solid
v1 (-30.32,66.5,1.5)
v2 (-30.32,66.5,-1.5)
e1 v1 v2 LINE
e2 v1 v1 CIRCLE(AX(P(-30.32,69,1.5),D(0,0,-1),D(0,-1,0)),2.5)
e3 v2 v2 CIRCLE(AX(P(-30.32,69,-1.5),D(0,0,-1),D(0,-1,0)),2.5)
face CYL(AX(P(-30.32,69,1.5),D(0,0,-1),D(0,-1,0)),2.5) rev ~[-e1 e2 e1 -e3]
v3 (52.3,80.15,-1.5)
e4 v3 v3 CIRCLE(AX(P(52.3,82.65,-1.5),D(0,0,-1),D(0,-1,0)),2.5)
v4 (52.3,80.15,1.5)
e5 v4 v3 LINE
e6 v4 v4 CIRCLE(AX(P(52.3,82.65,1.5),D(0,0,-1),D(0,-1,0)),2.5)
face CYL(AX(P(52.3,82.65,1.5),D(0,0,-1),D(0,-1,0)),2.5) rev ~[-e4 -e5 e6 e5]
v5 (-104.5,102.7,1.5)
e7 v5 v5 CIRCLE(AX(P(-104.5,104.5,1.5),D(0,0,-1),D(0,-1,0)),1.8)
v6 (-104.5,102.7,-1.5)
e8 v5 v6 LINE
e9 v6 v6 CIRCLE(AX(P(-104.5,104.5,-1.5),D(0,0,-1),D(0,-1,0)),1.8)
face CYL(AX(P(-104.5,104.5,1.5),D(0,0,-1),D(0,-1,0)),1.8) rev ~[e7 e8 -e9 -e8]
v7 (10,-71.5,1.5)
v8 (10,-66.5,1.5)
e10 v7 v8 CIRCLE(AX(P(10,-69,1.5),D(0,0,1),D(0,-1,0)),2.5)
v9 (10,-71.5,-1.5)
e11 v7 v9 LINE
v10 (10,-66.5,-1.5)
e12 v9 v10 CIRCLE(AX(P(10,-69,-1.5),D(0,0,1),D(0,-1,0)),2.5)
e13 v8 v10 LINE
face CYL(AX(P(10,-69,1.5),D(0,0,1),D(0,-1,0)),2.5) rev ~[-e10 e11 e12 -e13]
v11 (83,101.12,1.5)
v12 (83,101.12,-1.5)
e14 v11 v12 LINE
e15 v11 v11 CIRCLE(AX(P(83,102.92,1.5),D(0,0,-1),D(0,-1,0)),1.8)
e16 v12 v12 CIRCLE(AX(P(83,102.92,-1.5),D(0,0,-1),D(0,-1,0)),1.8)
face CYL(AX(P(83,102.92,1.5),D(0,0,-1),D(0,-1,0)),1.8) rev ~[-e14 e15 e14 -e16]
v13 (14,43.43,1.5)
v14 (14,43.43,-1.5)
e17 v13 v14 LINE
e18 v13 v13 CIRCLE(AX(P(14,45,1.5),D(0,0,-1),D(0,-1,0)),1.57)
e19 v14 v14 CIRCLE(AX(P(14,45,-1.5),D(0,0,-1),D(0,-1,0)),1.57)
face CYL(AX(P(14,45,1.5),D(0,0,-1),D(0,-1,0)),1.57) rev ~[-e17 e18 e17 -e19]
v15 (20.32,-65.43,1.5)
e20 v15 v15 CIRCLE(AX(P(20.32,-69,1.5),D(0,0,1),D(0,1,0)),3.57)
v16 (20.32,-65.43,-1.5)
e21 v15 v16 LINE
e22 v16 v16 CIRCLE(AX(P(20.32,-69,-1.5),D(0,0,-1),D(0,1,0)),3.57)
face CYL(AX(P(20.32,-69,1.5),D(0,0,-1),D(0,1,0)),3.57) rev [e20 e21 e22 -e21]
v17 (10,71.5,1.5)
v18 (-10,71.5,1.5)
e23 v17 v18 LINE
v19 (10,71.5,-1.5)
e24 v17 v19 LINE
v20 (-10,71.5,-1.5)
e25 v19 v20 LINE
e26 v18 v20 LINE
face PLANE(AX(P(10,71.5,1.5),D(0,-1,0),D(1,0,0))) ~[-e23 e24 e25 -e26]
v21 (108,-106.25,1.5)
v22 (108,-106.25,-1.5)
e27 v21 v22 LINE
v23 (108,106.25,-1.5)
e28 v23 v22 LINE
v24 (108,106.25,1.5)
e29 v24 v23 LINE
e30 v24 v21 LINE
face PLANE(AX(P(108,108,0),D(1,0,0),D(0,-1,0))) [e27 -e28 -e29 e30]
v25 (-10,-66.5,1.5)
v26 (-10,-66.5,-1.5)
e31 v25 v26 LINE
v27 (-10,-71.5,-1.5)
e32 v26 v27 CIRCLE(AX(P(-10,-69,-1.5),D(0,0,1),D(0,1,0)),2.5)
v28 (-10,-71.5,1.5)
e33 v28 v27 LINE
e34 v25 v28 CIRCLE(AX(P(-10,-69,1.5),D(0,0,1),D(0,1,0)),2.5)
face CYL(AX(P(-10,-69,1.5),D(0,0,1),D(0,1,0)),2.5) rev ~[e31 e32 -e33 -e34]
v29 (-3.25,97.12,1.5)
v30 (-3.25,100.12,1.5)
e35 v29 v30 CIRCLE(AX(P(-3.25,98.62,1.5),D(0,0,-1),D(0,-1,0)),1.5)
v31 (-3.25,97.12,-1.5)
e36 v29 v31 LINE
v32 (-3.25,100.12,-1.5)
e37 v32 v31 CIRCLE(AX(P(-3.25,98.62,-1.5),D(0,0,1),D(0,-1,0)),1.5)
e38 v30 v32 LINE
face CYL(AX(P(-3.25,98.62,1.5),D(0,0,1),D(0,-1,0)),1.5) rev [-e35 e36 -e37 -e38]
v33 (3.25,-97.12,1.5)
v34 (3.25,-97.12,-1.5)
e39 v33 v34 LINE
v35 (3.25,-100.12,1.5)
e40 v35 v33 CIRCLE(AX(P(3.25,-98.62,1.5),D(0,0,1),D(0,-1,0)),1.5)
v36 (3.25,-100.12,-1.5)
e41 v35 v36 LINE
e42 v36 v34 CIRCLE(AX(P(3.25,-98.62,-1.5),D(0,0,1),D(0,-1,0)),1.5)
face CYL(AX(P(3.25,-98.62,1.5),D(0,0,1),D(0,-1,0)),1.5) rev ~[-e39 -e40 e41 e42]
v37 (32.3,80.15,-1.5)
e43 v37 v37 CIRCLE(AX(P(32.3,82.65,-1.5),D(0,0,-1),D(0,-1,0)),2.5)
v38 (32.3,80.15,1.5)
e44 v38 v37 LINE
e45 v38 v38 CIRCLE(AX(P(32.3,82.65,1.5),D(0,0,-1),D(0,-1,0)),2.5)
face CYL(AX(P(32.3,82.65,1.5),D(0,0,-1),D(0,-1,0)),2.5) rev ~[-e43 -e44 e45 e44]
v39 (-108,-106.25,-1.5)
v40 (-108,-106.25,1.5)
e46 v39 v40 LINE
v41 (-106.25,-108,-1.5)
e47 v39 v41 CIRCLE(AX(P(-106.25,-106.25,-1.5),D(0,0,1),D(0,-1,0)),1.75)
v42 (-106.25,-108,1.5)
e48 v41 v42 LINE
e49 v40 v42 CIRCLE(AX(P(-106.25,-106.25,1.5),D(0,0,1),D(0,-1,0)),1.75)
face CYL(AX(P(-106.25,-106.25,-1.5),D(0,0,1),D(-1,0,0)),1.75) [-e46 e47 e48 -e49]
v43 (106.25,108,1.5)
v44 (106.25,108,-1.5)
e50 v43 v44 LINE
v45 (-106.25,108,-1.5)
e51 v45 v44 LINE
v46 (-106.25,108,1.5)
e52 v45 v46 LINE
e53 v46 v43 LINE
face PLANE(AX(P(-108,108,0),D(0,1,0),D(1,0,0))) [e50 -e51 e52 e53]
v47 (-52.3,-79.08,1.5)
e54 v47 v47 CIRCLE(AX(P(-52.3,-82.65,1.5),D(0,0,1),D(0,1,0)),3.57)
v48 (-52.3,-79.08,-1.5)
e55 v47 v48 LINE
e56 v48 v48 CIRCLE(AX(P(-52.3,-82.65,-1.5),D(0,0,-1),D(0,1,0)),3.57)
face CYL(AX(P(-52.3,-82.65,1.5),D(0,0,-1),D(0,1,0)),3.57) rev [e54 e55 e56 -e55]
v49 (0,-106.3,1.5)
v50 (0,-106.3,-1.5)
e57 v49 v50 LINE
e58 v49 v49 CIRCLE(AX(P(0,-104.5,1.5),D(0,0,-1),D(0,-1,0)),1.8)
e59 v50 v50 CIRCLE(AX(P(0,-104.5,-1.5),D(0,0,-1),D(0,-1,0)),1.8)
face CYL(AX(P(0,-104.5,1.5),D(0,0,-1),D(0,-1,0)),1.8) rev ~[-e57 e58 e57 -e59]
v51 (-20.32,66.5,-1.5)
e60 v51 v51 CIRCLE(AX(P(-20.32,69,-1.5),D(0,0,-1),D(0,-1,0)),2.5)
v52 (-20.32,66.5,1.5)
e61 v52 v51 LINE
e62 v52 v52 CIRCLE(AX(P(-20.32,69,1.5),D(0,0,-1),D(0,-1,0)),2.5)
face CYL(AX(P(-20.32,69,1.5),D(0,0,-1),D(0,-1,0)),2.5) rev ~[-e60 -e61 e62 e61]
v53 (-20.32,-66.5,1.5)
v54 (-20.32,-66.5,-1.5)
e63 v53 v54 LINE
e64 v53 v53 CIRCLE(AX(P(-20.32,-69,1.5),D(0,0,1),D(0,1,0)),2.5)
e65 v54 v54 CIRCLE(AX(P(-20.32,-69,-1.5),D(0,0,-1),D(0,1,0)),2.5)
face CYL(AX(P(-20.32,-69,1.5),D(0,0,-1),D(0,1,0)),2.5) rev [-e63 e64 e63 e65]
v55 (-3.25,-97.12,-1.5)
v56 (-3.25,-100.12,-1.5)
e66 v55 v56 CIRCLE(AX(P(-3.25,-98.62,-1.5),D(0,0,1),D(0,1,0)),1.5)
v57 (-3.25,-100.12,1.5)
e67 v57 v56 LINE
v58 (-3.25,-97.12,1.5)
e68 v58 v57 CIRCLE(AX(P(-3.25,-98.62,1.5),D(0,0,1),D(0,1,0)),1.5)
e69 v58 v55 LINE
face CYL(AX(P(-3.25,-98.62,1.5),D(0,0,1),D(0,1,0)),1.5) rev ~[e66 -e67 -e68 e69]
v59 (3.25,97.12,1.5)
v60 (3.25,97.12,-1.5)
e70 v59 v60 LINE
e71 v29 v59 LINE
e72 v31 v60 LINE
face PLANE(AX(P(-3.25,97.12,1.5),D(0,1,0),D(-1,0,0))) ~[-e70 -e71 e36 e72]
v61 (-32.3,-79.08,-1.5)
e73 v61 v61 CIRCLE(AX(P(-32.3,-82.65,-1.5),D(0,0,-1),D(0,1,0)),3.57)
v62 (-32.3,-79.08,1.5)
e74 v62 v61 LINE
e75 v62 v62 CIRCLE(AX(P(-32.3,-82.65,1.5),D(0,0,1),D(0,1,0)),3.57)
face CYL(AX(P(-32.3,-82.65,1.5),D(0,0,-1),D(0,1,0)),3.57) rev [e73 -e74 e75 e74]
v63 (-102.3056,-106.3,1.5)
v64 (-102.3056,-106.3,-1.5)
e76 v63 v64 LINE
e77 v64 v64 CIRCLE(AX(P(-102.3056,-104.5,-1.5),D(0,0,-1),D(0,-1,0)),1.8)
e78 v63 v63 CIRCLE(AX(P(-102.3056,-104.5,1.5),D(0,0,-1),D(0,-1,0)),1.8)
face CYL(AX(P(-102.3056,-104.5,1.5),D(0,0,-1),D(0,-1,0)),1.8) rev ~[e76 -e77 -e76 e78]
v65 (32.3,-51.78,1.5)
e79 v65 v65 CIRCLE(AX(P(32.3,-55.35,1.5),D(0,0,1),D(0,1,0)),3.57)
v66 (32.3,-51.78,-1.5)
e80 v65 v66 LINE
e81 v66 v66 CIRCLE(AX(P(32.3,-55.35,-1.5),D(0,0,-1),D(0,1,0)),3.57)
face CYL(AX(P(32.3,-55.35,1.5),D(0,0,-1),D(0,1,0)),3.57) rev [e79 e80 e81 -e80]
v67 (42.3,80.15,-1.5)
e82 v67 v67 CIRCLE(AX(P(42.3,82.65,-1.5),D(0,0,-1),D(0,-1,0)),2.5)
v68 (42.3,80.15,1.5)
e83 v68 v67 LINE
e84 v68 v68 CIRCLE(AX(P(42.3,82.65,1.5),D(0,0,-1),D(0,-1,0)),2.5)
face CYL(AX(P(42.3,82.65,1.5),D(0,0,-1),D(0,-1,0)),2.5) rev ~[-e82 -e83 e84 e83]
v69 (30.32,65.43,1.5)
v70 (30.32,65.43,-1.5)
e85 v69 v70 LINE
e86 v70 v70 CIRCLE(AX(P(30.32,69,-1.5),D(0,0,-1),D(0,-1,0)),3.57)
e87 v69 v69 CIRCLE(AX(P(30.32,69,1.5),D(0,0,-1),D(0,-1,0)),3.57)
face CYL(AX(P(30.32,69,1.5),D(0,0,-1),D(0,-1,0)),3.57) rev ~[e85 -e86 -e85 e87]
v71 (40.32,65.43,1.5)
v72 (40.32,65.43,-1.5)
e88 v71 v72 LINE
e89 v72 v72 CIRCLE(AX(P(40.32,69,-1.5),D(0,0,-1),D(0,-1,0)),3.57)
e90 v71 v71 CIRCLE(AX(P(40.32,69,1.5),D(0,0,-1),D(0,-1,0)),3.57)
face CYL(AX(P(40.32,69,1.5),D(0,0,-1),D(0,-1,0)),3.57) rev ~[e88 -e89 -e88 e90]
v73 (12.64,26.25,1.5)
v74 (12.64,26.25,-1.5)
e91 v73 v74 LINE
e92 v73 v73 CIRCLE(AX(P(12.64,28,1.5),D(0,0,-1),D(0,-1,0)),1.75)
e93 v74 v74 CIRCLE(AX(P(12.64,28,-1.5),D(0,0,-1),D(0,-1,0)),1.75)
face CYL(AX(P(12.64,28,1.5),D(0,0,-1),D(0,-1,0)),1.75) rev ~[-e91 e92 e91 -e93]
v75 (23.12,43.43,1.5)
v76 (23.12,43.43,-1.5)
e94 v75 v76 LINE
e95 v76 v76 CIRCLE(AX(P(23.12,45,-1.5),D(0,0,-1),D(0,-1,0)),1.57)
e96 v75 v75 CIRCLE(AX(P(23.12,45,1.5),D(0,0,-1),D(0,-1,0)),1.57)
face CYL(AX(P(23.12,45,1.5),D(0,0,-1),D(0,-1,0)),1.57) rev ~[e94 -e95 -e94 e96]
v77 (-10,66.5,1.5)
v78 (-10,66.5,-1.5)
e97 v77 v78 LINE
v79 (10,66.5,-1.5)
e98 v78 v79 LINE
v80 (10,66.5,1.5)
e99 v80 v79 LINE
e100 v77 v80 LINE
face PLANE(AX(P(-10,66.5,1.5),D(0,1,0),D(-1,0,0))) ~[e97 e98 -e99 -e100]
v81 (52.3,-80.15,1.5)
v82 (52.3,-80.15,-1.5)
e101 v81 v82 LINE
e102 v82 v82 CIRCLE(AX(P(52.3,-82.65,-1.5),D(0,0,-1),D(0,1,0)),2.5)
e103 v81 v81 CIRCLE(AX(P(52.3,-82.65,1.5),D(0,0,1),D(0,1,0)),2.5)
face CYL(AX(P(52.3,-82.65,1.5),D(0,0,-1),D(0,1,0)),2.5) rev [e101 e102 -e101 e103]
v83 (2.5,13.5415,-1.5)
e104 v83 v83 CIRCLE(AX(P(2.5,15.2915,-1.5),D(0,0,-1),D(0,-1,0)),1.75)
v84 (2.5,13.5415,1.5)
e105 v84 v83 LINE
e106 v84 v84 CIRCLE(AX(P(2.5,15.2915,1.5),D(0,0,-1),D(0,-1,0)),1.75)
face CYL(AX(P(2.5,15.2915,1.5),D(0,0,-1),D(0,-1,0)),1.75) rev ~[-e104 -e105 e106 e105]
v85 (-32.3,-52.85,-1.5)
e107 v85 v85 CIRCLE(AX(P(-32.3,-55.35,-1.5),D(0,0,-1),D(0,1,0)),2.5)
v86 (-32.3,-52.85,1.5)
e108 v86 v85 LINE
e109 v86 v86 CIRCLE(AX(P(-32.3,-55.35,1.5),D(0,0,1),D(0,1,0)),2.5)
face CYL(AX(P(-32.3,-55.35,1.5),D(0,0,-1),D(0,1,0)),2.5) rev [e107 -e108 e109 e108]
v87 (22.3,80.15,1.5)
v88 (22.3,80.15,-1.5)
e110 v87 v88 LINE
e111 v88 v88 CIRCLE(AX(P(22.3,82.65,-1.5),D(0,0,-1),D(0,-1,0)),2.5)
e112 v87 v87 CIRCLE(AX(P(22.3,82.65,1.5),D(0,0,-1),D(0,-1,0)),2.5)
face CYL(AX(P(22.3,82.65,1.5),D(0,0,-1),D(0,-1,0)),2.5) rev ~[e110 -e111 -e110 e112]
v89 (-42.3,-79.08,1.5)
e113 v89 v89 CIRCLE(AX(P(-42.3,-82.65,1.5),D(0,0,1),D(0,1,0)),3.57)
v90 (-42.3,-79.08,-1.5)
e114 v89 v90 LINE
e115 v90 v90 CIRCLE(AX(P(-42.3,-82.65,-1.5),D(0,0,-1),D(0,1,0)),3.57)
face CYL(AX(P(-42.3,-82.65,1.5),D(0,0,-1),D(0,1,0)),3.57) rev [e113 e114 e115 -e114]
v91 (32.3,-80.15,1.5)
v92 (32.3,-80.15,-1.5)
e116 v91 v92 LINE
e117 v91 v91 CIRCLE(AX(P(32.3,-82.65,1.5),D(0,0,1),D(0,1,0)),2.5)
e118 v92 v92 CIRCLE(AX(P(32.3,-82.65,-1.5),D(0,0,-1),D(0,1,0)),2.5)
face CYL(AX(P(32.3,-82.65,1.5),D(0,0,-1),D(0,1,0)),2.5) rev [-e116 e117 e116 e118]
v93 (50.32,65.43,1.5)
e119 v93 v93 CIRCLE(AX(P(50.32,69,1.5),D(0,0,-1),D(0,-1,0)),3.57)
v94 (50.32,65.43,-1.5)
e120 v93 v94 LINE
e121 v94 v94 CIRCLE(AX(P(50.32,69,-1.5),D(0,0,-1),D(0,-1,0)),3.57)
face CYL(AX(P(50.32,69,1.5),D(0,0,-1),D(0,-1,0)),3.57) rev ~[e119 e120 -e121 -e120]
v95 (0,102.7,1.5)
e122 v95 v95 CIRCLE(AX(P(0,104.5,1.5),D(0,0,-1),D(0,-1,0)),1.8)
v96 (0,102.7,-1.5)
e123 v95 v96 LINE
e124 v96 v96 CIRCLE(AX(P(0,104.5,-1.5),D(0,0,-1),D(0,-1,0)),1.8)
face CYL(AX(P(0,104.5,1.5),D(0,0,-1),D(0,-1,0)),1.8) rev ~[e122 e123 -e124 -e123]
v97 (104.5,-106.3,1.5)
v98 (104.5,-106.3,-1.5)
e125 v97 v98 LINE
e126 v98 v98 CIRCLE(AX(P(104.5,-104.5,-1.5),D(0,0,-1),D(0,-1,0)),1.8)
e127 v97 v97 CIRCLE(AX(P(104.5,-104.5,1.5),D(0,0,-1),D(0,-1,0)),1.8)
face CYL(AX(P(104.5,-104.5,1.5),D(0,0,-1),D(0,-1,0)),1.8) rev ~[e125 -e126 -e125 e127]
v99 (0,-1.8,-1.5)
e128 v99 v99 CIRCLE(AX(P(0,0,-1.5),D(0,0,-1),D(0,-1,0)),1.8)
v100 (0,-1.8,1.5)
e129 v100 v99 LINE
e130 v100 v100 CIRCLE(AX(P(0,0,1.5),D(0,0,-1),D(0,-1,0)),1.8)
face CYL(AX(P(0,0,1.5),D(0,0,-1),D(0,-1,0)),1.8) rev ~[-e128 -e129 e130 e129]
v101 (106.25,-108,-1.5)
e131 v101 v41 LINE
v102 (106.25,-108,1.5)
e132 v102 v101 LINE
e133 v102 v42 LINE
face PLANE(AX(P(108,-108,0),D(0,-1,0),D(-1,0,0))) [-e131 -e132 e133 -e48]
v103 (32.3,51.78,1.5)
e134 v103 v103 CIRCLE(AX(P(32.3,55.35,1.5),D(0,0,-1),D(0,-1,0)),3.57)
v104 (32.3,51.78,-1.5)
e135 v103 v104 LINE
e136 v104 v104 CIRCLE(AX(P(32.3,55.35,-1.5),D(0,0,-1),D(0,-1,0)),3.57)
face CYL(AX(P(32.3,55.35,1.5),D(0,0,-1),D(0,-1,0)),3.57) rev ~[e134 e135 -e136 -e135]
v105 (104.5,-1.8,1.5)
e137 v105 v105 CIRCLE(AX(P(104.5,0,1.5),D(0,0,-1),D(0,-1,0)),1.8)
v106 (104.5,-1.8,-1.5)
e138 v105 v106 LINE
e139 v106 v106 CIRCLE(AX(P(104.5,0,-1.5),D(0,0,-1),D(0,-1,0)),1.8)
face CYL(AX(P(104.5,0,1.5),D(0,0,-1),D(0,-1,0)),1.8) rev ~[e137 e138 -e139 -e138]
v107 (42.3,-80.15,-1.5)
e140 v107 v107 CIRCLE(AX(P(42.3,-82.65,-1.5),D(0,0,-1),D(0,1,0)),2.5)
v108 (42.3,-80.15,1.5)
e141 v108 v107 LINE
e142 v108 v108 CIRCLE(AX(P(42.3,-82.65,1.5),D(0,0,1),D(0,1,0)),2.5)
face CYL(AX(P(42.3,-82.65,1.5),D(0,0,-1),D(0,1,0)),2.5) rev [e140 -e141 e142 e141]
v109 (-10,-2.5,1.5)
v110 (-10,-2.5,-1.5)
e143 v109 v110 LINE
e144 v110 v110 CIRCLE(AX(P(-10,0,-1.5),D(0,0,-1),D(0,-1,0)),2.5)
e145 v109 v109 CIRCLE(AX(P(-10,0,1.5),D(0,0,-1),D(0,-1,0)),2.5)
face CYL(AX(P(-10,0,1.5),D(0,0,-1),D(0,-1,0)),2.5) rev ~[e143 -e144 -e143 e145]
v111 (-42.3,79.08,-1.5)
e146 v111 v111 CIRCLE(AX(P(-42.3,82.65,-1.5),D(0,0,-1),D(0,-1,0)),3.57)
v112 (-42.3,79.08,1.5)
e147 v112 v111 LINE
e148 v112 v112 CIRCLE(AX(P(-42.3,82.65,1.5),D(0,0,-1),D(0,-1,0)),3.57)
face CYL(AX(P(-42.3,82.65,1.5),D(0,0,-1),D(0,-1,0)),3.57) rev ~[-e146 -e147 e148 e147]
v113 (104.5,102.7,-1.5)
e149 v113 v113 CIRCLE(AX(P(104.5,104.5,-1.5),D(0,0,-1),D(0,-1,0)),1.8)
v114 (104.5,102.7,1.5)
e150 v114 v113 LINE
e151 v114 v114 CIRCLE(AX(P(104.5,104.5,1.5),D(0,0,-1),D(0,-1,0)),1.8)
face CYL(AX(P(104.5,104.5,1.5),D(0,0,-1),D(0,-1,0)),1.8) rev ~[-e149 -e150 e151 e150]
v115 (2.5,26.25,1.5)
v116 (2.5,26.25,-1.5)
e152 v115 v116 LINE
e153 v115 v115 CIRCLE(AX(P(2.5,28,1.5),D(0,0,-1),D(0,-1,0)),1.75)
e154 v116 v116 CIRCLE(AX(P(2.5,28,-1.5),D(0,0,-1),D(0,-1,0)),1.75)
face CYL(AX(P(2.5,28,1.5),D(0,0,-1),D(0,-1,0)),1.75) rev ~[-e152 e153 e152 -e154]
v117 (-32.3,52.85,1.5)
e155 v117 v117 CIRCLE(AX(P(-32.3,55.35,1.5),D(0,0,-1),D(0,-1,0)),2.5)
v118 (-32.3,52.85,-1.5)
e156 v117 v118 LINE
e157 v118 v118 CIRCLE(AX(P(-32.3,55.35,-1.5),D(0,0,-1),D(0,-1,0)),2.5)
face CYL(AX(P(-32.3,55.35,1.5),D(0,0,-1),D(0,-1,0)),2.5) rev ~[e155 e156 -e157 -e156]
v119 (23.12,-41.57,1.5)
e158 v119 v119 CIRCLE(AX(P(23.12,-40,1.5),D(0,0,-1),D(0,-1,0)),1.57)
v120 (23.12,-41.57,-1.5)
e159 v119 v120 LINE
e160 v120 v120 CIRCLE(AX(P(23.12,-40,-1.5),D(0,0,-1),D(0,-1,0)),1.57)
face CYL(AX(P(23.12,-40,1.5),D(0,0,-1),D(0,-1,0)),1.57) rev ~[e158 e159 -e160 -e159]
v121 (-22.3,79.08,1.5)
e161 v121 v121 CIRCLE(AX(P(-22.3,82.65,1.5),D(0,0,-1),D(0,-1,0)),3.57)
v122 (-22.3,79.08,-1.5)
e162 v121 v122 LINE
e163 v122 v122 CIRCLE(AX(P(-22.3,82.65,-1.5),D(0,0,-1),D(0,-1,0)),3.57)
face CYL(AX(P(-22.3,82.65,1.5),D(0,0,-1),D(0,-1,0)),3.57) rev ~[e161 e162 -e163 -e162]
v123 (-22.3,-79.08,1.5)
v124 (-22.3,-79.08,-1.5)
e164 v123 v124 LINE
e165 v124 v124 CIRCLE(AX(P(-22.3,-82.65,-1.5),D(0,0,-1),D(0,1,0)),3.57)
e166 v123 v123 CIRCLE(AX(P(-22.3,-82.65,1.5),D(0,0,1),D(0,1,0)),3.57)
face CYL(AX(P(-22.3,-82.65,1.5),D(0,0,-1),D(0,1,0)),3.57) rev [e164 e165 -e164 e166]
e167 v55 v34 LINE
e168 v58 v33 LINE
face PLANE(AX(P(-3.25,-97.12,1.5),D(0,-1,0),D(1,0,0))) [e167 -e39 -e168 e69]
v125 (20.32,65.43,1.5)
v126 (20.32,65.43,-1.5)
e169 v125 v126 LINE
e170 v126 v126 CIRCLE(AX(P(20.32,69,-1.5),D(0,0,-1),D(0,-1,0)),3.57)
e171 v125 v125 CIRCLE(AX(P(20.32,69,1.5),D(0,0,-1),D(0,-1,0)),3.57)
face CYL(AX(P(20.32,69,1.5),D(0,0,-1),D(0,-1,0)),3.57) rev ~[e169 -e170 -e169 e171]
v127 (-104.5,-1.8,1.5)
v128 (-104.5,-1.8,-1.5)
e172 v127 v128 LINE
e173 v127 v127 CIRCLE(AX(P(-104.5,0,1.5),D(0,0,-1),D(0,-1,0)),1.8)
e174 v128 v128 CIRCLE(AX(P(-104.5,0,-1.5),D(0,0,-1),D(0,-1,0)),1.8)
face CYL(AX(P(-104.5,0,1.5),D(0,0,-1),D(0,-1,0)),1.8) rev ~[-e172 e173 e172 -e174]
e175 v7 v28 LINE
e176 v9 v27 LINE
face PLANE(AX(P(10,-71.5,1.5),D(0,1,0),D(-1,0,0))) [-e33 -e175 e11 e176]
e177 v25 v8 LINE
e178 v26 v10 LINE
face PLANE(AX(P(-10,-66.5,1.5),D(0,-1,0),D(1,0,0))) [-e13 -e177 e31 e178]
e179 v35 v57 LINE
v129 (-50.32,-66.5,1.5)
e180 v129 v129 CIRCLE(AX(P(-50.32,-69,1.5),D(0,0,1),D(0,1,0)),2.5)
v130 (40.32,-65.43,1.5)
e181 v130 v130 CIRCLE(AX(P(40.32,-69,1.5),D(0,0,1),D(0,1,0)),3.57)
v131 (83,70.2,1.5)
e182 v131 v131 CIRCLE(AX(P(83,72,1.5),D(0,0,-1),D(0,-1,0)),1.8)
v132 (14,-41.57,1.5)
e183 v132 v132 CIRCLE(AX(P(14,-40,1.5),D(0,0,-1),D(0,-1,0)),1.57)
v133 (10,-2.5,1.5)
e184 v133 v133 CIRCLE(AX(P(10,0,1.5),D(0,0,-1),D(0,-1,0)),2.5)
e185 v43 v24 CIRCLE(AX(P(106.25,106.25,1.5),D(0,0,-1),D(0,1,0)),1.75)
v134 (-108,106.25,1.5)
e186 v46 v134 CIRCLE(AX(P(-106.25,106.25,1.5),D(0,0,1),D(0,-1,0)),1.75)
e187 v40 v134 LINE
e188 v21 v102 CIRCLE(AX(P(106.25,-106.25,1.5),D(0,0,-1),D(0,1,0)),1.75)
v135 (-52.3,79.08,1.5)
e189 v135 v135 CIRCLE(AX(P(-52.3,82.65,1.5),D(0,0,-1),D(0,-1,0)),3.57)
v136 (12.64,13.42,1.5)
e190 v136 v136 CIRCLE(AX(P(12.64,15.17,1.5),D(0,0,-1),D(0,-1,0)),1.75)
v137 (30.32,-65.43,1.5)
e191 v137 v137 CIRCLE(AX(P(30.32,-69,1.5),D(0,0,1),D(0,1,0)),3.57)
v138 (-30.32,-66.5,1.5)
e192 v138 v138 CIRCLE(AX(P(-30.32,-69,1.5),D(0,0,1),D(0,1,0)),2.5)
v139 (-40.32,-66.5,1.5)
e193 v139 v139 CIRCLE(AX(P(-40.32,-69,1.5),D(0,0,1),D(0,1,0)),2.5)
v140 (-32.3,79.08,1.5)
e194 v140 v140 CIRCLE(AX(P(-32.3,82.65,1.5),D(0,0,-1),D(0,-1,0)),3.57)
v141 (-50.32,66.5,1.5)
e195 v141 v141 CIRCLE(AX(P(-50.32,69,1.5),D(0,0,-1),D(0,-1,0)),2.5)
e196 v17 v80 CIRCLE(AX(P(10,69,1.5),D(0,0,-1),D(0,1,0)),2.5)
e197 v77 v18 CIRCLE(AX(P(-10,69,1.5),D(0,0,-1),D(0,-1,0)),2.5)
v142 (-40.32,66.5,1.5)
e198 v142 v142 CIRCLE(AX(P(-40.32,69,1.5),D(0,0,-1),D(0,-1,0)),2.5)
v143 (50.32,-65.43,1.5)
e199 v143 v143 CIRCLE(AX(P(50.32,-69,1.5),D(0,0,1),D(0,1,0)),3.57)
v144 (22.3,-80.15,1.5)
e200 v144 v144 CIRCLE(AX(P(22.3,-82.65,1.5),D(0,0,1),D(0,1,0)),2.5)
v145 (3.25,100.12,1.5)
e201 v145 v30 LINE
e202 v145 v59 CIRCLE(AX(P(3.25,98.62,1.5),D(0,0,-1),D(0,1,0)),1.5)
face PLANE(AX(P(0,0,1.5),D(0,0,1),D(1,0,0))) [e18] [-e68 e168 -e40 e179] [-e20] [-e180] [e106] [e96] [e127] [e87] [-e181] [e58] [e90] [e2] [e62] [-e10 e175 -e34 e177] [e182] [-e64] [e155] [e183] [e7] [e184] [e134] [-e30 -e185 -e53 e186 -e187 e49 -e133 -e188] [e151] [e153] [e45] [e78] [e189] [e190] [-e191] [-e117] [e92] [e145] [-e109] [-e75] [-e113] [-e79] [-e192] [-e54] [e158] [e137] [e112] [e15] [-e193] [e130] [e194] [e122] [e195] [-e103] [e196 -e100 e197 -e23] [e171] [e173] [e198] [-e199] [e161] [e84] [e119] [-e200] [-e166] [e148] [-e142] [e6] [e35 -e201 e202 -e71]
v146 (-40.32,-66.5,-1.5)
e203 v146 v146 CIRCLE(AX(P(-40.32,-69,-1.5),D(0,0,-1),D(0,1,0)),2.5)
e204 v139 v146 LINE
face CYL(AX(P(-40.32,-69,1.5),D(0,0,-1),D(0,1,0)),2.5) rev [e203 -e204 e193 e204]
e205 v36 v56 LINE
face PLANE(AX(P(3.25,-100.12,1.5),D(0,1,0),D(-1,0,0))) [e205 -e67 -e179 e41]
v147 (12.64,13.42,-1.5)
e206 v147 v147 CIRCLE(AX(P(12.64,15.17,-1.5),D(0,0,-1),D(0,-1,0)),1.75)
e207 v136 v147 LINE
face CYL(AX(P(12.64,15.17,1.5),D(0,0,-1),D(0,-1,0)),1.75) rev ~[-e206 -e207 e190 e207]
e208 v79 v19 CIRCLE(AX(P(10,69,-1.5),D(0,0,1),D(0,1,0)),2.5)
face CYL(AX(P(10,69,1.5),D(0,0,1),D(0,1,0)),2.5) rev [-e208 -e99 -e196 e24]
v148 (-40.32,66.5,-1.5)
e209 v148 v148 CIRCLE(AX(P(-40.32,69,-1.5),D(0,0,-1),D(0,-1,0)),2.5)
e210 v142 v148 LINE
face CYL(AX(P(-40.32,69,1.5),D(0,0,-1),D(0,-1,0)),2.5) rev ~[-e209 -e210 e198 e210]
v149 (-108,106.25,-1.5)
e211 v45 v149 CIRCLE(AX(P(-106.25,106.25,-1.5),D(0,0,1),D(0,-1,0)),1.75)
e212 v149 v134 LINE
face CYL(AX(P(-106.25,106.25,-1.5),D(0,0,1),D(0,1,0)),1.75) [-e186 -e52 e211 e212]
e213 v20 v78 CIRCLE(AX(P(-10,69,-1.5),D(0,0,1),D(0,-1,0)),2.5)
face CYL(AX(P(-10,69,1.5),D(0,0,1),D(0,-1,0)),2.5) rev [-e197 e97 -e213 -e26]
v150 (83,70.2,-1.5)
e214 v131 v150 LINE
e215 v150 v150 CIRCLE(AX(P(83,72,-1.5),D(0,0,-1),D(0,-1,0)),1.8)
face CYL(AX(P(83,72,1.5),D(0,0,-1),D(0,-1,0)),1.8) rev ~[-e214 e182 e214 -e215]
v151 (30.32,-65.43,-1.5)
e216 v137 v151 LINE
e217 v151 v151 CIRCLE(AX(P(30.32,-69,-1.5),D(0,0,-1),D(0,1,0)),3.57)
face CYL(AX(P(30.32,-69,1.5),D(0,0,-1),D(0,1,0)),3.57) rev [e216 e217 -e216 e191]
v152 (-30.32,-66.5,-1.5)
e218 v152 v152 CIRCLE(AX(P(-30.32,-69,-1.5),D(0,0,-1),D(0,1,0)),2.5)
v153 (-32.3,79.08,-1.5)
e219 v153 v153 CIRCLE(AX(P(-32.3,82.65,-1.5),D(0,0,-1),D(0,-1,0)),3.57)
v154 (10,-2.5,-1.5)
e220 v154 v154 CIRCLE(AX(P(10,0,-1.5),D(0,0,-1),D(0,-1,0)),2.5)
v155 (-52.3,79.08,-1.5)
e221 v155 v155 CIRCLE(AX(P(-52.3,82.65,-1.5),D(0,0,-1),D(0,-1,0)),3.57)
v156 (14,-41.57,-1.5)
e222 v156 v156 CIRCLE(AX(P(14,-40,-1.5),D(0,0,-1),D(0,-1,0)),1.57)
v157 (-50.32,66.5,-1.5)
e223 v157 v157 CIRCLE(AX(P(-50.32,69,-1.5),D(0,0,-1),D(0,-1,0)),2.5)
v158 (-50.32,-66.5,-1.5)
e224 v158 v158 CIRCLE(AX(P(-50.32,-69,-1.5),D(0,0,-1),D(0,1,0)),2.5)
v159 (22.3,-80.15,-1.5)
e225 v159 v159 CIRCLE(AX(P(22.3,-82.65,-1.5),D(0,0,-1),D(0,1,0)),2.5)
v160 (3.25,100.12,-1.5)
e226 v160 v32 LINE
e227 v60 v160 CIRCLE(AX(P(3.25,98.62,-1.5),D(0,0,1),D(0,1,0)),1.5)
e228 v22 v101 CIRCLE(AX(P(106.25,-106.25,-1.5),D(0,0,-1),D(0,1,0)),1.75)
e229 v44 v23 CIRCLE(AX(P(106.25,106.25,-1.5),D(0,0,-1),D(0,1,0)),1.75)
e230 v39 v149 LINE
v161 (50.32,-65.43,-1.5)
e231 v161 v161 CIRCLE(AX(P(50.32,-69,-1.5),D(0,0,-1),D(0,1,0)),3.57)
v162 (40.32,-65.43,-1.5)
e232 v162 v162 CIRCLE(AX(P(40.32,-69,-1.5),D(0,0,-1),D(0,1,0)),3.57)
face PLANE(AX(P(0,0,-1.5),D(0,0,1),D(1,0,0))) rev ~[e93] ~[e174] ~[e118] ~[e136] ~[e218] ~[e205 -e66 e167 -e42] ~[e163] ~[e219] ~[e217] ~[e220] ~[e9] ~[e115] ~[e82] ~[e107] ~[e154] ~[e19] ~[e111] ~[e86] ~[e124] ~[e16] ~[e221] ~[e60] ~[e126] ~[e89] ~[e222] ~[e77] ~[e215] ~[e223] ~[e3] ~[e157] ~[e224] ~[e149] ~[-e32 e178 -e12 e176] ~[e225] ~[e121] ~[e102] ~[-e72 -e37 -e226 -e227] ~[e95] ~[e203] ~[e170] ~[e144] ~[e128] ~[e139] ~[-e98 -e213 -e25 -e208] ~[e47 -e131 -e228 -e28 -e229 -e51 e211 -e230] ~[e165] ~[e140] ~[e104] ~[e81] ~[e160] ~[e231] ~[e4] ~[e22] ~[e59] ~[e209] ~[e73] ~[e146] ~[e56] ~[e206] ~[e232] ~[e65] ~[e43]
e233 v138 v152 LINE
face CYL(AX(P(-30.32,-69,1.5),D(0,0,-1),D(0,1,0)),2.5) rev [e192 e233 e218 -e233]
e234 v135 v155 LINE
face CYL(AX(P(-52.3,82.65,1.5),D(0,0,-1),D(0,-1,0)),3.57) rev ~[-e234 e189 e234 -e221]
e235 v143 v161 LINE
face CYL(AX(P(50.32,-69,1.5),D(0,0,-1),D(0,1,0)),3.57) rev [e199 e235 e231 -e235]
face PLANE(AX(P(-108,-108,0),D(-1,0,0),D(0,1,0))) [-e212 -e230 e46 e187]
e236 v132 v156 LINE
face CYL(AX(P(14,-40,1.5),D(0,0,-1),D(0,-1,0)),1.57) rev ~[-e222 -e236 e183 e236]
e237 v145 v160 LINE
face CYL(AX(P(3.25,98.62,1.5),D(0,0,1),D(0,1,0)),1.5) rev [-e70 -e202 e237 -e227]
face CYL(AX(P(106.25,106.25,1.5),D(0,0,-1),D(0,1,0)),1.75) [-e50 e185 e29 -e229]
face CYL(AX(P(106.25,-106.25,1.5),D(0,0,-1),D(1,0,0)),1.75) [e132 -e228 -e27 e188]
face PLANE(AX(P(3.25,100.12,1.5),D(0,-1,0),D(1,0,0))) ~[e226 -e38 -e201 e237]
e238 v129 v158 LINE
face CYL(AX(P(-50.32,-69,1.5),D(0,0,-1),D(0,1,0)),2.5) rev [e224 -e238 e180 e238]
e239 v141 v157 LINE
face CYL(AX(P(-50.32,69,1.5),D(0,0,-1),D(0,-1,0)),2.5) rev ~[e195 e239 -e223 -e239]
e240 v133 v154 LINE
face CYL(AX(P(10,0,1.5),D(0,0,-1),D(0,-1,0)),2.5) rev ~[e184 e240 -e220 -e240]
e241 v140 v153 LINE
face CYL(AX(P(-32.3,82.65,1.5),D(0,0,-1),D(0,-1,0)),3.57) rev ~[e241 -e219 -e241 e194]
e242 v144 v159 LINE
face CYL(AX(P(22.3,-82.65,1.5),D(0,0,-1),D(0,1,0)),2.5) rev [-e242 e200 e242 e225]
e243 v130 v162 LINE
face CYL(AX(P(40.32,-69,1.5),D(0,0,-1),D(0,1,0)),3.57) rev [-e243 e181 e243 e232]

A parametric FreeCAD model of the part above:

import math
import FreeCAD as App
import Part
import Sketcher
Q = App.Units.Quantity


def edges_at(feature, points):
    """Names of the edges that pass closest to the given points."""
    edges = feature.Shape.Edges
    near = lambda p: min(range(len(edges)), key=lambda i: edges[i].distToShape(Part.Vertex(*p))[0])
    return sorted({f"Edge{near(p) + 1}" for p in points})


def add_polygon(sketch, points):
    """Adds a closed chain of lines whose ends are joined by coincident constraints."""
    first, n = sketch.GeometryCount, len(points)
    for a, b in zip(points, points[1:] + points[:1]):
        sketch.addGeometry(Part.LineSegment(App.Vector(*a, 0), App.Vector(*b, 0)), False)
    for i in range(n):
        sketch.addConstraint(Sketcher.Constraint("Coincident", first + i, 2, first + (i + 1) % n, 1))

doc = App.newDocument("Part")
params = doc.addObject("Spreadsheet::Sheet", "Params")
for row, (alias, value) in enumerate([
    ("sketch1_width", "216 mm"),
    ("pad1_length", "3 mm"),
    ("sketch2_diameter", "3.6 mm"),
    ("hole_diameter", "3.6 mm"),
    ("sketch3_diameter", "7.14 mm"),
    ("hole2_diameter", "7.14 mm"),
    ("sketch4_diameter", "5 mm"),
    ("hole3_diameter", "5 mm"),
    ("sketch5_diameter", "5 mm"),
    ("hole4_diameter", "5 mm"),
    ("sketch6_diameter", "7.14 mm"),
    ("hole5_diameter", "7.14 mm"),
    ("sketch7_diameter", "5 mm"),
    ("hole6_diameter", "5 mm"),
    ("sketch8_diameter", "3.5 mm"),
    ("hole7_diameter", "3.5 mm"),
    ("sketch9_diameter", "3.14 mm"),
    ("hole8_diameter", "3.14 mm"),
    ("sketch10_diameter", "3.14 mm"),
    ("hole9_diameter", "3.14 mm"),
    ("sketch11_radius", "1.5 mm"),
    ("sketch11_width", "6.5 mm"),
    ("sketch12_radius", "2.5 mm"),
    ("sketch12_width", "20 mm"),
    ("sketch13_diameter", "3.6 mm"),
    ("hole10_diameter", "3.6 mm"),
    ("fillet_radius", "1.75 mm"),
], start=1):
    params.set(f"A{row}", alias)
    params.set(f"B{row}", "=" + value)
    params.setAlias(f"B{row}", alias)

body = doc.addObject("PartDesign::Body", "Body")

sketch1 = body.newObject("Sketcher::SketchObject", "Sketch")
sketch1.AttachmentSupport = (doc.getObject("XY_Plane"), [""])
sketch1.MapMode = "FlatFace"
add_polygon(sketch1, [(108, 108), (-108, 108), (-108, -108), (108, -108)])
sketch1.addConstraint([
    Sketcher.Constraint("Horizontal", 0),
    Sketcher.Constraint("Vertical", 1),
    Sketcher.Constraint("Horizontal", 2),
    Sketcher.Constraint("Vertical", 3),
    Sketcher.Constraint("Symmetric", 0, 2, 2, 2, -1, 1),
    Sketcher.Constraint("Equal", 2, 1),
    Sketcher.Constraint("DistanceX", 0, 2, 0, 1, Q("216 mm")),
])
sketch1.setExpression("Constraints[10]", "Params.sketch1_width")
pad1 = body.newObject("PartDesign::Pad", "Pad")
pad1.Profile = sketch1
pad1.setExpression("Length", "Params.pad1_length")
pad1.Midplane = True

sketch2 = body.newObject("Sketcher::SketchObject", "Sketch001")
sketch2.AttachmentSupport = (doc.getObject("XY_Plane"), [""])
sketch2.MapMode = "FlatFace"
sketch2.AttachmentOffset = App.Placement(App.Vector(0, 0, 1.5), App.Rotation())
sketch2.addGeometry([
    Part.Circle(App.Vector(104.5, 104.5, 0), App.Vector(0, 0, 1), 1.8),
    Part.Circle(App.Vector(104.5, -104.5, 0), App.Vector(0, 0, 1), 1.8),
    Part.Circle(App.Vector(-102.3, -104.5, 0), App.Vector(0, 0, 1), 1.8),
    Part.Circle(App.Vector(-104.5, 104.5, 0), App.Vector(0, 0, 1), 1.8),
    Part.Circle(App.Vector(104.5, 0, 0), App.Vector(0, 0, 1), 1.8),
    Part.Circle(App.Vector(-104.5, 0, 0), App.Vector(0, 0, 1), 1.8),
    Part.Circle(App.Vector(0, 104.5, 0), App.Vector(0, 0, 1), 1.8),
    Part.Circle(App.Vector(0, -104.5, 0), App.Vector(0, 0, 1), 1.8),
    Part.Circle(App.Vector(0, 0, 0), App.Vector(0, 0, 1), 1.8),
], False)
sketch2.addConstraint([
    Sketcher.Constraint("Coincident", 8, 3, -1, 1),
    Sketcher.Constraint("Equal", 0, 1),
    Sketcher.Constraint("Equal", 1, 2),
    Sketcher.Constraint("Equal", 2, 3),
    Sketcher.Constraint("Equal", 3, 4),
    Sketcher.Constraint("Equal", 4, 5),
    Sketcher.Constraint("Equal", 5, 6),
    Sketcher.Constraint("Equal", 6, 7),
    Sketcher.Constraint("Equal", 7, 8),
    Sketcher.Constraint("Symmetric", 1, 3, 3, 3, -1, 1),
    Sketcher.Constraint("Symmetric", 4, 3, 5, 3, -1, 1),
    Sketcher.Constraint("Symmetric", 6, 3, 7, 3, -1, 1),
    Sketcher.Constraint("Symmetric", 0, 3, 3, 3, -2),
    Sketcher.Constraint("PointOnObject", 4, 3, -1),
    Sketcher.Constraint("PointOnObject", 6, 3, -2),
    Sketcher.Constraint("Horizontal", 1, 3, 2, 3),
    Sketcher.Constraint("Horizontal", 3, 3, 6, 3),
    Sketcher.Constraint("Vertical", 1, 3, 4, 3),
    Sketcher.Constraint("Diameter", 0, Q("3.6 mm")),
    Sketcher.Constraint("DistanceY", 1, 3, 0, 3, Q("209 mm")),
    Sketcher.Constraint("DistanceX", 3, 3, 0, 3, Q("209 mm")),
    Sketcher.Constraint("DistanceX", 2, 3, -1, 1, Q("102.3056 mm")),
])
sketch2.setExpression("Constraints[18]", "Params.sketch2_diameter")
doc.recompute()
hole = body.newObject("PartDesign::Hole", "Hole")
hole.Profile = sketch2
hole.ThreadType = "None"
hole.setExpression("Diameter", "Params.hole_diameter")
hole.DepthType = "ThroughAll"

sketch3 = body.newObject("Sketcher::SketchObject", "Sketch002")
sketch3.AttachmentSupport = (doc.getObject("XY_Plane"), [""])
sketch3.MapMode = "FlatFace"
sketch3.AttachmentOffset = App.Placement(App.Vector(0, 0, 1.5), App.Rotation())
sketch3.addGeometry([
    Part.Circle(App.Vector(-52.3, 82.7, 0), App.Vector(0, 0, 1), 3.6),
    Part.Circle(App.Vector(-42.3, 82.7, 0), App.Vector(0, 0, 1), 3.6),
    Part.Circle(App.Vector(-32.3, 82.7, 0), App.Vector(0, 0, 1), 3.6),
    Part.Circle(App.Vector(-22.3, 82.7, 0), App.Vector(0, 0, 1), 3.6),
    Part.Circle(App.Vector(20.3, 69, 0), App.Vector(0, 0, 1), 3.6),
    Part.Circle(App.Vector(30.3, 69, 0), App.Vector(0, 0, 1), 3.6),
    Part.Circle(App.Vector(40.3, 69, 0), App.Vector(0, 0, 1), 3.6),
    Part.Circle(App.Vector(50.3, 69, 0), App.Vector(0, 0, 1), 3.6),
], False)
sketch3.addConstraint([
    Sketcher.Constraint("Equal", 0, 1),
    Sketcher.Constraint("Equal", 1, 2),
    Sketcher.Constraint("Equal", 2, 3),
    Sketcher.Constraint("Equal", 3, 4),
    Sketcher.Constraint("Equal", 4, 5),
    Sketcher.Constraint("Equal", 5, 6),
    Sketcher.Constraint("Equal", 6, 7),
    Sketcher.Constraint("Horizontal", 0, 3, 1, 3),
    Sketcher.Constraint("Horizontal", 1, 3, 2, 3),
    Sketcher.Constraint("Horizontal", 2, 3, 3, 3),
    Sketcher.Constraint("Horizontal", 4, 3, 5, 3),
    Sketcher.Constraint("Horizontal", 5, 3, 6, 3),
    Sketcher.Constraint("Horizontal", 6, 3, 7, 3),
    Sketcher.Constraint("Diameter", 0, Q("7.14 mm")),
    Sketcher.Constraint("DistanceY", -1, 1, 4, 3, Q("69 mm")),
    Sketcher.Constraint("DistanceX", 0, 3, 1, 3, Q("10 mm")),
    Sketcher.Constraint("DistanceX", 1, 3, 2, 3, Q("10 mm")),
    Sketcher.Constraint("DistanceX", 2, 3, 3, 3, Q("10 mm")),
    Sketcher.Constraint("DistanceX", 4, 3, 5, 3, Q("10 mm")),
    Sketcher.Constraint("DistanceX", 5, 3, 6, 3, Q("10 mm")),
    Sketcher.Constraint("DistanceX", 6, 3, 7, 3, Q("10 mm")),
    Sketcher.Constraint("DistanceX", 0, 3, -1, 1, Q("52.3 mm")),
    Sketcher.Constraint("DistanceY", -1, 1, 0, 3, Q("82.65 mm")),
    Sketcher.Constraint("DistanceX", -1, 1, 4, 3, Q("20.32 mm")),
])
sketch3.setExpression("Constraints[13]", "Params.sketch3_diameter")
doc.recompute()
hole2 = body.newObject("PartDesign::Hole", "Hole001")
hole2.Profile = sketch3
hole2.ThreadType = "None"
hole2.setExpression("Diameter", "Params.hole2_diameter")
hole2.DepthType = "ThroughAll"

sketch4 = body.newObject("Sketcher::SketchObject", "Sketch003")
sketch4.AttachmentSupport = (doc.getObject("XY_Plane"), [""])
sketch4.MapMode = "FlatFace"
sketch4.AttachmentOffset = App.Placement(App.Vector(0, 0, 1.5), App.Rotation())
sketch4.addGeometry([
    Part.Circle(App.Vector(-50.3, 69, 0), App.Vector(0, 0, 1), 2.5),
    Part.Circle(App.Vector(-40.3, 69, 0), App.Vector(0, 0, 1), 2.5),
    Part.Circle(App.Vector(-30.3, 69, 0), App.Vector(0, 0, 1), 2.5),
    Part.Circle(App.Vector(-20.3, 69, 0), App.Vector(0, 0, 1), 2.5),
    Part.Circle(App.Vector(22.3, 82.7, 0), App.Vector(0, 0, 1), 2.5),
    Part.Circle(App.Vector(32.3, 82.7, 0), App.Vector(0, 0, 1), 2.5),
    Part.Circle(App.Vector(42.3, 82.7, 0), App.Vector(0, 0, 1), 2.5),
    Part.Circle(App.Vector(52.3, 82.7, 0), App.Vector(0, 0, 1), 2.5),
], False)
sketch4.addConstraint([
    Sketcher.Constraint("Equal", 0, 1),
    Sketcher.Constraint("Equal", 1, 2),
    Sketcher.Constraint("Equal", 2, 3),
    Sketcher.Constraint("Equal", 3, 4),
    Sketcher.Constraint("Equal", 4, 5),
    Sketcher.Constraint("Equal", 5, 6),
    Sketcher.Constraint("Equal", 6, 7),
    Sketcher.Constraint("Horizontal", 0, 3, 1, 3),
    Sketcher.Constraint("Horizontal", 1, 3, 2, 3),
    Sketcher.Constraint("Horizontal", 2, 3, 3, 3),
    Sketcher.Constraint("Horizontal", 4, 3, 5, 3),
    Sketcher.Constraint("Horizontal", 5, 3, 6, 3),
    Sketcher.Constraint("Horizontal", 6, 3, 7, 3),
    Sketcher.Constraint("Diameter", 0, Q("5 mm")),
    Sketcher.Constraint("DistanceY", -1, 1, 0, 3, Q("69 mm")),
    Sketcher.Constraint("DistanceX", 0, 3, 1, 3, Q("10 mm")),
    Sketcher.Constraint("DistanceX", 1, 3, 2, 3, Q("10 mm")),
    Sketcher.Constraint("DistanceX", 2, 3, 3, 3, Q("10 mm")),
    Sketcher.Constraint("DistanceX", 4, 3, 5, 3, Q("10 mm")),
    Sketcher.Constraint("DistanceX", 5, 3, 6, 3, Q("10 mm")),
    Sketcher.Constraint("DistanceX", 6, 3, 7, 3, Q("10 mm")),
    Sketcher.Constraint("DistanceX", -1, 1, 4, 3, Q("22.3 mm")),
    Sketcher.Constraint("DistanceX", 0, 3, -1, 1, Q("50.32 mm")),
    Sketcher.Constraint("DistanceY", -1, 1, 4, 3, Q("82.65 mm")),
])
sketch4.setExpression("Constraints[13]", "Params.sketch4_diameter")
doc.recompute()
hole3 = body.newObject("PartDesign::Hole", "Hole002")
hole3.Profile = sketch4
hole3.ThreadType = "None"
hole3.setExpression("Diameter", "Params.hole3_diameter")
hole3.DepthType = "ThroughAll"

sketch5 = body.newObject("Sketcher::SketchObject", "Sketch004")
sketch5.AttachmentSupport = (doc.getObject("XY_Plane"), [""])
sketch5.MapMode = "FlatFace"
sketch5.AttachmentOffset = App.Placement(App.Vector(0, 0, 1.5), App.Rotation())
sketch5.addGeometry(Part.Circle(App.Vector(-32.3, 55.4, 0), App.Vector(0, 0, 1), 2.5), False)
sketch5.addConstraint([
    Sketcher.Constraint("Diameter", 0, Q("5 mm")),
    Sketcher.Constraint("DistanceX", 0, 3, -1, 1, Q("32.3 mm")),
    Sketcher.Constraint("DistanceY", -1, 1, 0, 3, Q("55.35 mm")),
])
sketch5.setExpression("Constraints[0]", "Params.sketch5_diameter")
doc.recompute()
hole4 = body.newObject("PartDesign::Hole", "Hole003")
hole4.Profile = sketch5
hole4.ThreadType = "None"
hole4.setExpression("Diameter", "Params.hole4_diameter")
hole4.DepthType = "ThroughAll"

sketch6 = body.newObject("Sketcher::SketchObject", "Sketch005")
sketch6.AttachmentSupport = (doc.getObject("XY_Plane"), [""])
sketch6.MapMode = "FlatFace"
sketch6.AttachmentOffset = App.Placement(App.Vector(0, 0, 1.5), App.Rotation())
sketch6.addGeometry(Part.Circle(App.Vector(32.3, 55.4, 0), App.Vector(0, 0, 1), 3.6), False)
sketch6.addConstraint([
    Sketcher.Constraint("Diameter", 0, Q("7.14 mm")),
    Sketcher.Constraint("DistanceX", -1, 1, 0, 3, Q("32.3 mm")),
    Sketcher.Constraint("DistanceY", -1, 1, 0, 3, Q("55.35 mm")),
])
sketch6.setExpression("Constraints[0]", "Params.sketch6_diameter")
doc.recompute()
hole5 = body.newObject("PartDesign::Hole", "Hole004")
hole5.Profile = sketch6
hole5.ThreadType = "None"
hole5.setExpression("Diameter", "Params.hole5_diameter")
hole5.DepthType = "ThroughAll"
doc.recompute()

mirrored = body.newObject("PartDesign::Mirrored", "Mirrored")
mirrored.Originals = [hole2, hole3, hole4, hole5]
mirrored.MirrorPlane = (doc.getObject("XZ_Plane"), [""])
body.Tip = mirrored

sketch7 = body.newObject("Sketcher::SketchObject", "Sketch006")
sketch7.AttachmentSupport = (doc.getObject("XY_Plane"), [""])
sketch7.MapMode = "FlatFace"
sketch7.AttachmentOffset = App.Placement(App.Vector(0, 0, 1.5), App.Rotation())
sketch7.addGeometry([
    Part.Circle(App.Vector(-10, 0, 0), App.Vector(0, 0, 1), 2.5),
    Part.Circle(App.Vector(10, 0, 0), App.Vector(0, 0, 1), 2.5),
], False)
sketch7.addConstraint([
    Sketcher.Constraint("Equal", 0, 1),
    Sketcher.Constraint("Symmetric", 0, 3, 1, 3, -1, 1),
    Sketcher.Constraint("PointOnObject", 0, 3, -1),
    Sketcher.Constraint("Diameter", 0, Q("5 mm")),
    Sketcher.Constraint("DistanceX", 0, 3, -1, 1, Q("10 mm")),
])
sketch7.setExpression("Constraints[3]", "Params.sketch7_diameter")
doc.recompute()
hole6 = body.newObject("PartDesign::Hole", "Hole005")
hole6.Profile = sketch7
hole6.ThreadType = "None"
hole6.setExpression("Diameter", "Params.hole6_diameter")
hole6.DepthType = "ThroughAll"

sketch8 = body.newObject("Sketcher::SketchObject", "Sketch007")
sketch8.AttachmentSupport = (doc.getObject("XY_Plane"), [""])
sketch8.MapMode = "FlatFace"
sketch8.AttachmentOffset = App.Placement(App.Vector(0, 0, 1.5), App.Rotation())
sketch8.addGeometry([
    Part.Circle(App.Vector(2.5, 15.3, 0), App.Vector(0, 0, 1), 1.8),
    Part.Circle(App.Vector(12.6, 15.2, 0), App.Vector(0, 0, 1), 1.8),
    Part.Circle(App.Vector(12.6, 28, 0), App.Vector(0, 0, 1), 1.8),
    Part.Circle(App.Vector(2.5, 28, 0), App.Vector(0, 0, 1), 1.8),
], False)
sketch8.addConstraint([
    Sketcher.Constraint("Equal", 0, 1),
    Sketcher.Constraint("Equal", 1, 2),
    Sketcher.Constraint("Equal", 2, 3),
    Sketcher.Constraint("Horizontal", 2, 3, 3, 3),
    Sketcher.Constraint("Vertical", 1, 3, 2, 3),
    Sketcher.Constraint("Vertical", 0, 3, 3, 3),
    Sketcher.Constraint("Diameter", 0, Q("3.5 mm")),
    Sketcher.Constraint("DistanceY", -1, 1, 2, 3, Q("28 mm")),
    Sketcher.Constraint("DistanceX", -1, 1, 0, 3, Q("2.5 mm")),
    Sketcher.Constraint("DistanceX", -1, 1, 1, 3, Q("12.64 mm")),
    Sketcher.Constraint("DistanceY", -1, 1, 1, 3, Q("15.17 mm")),
    Sketcher.Constraint("DistanceY", -1, 1, 0, 3, Q("15.2915 mm")),
])
sketch8.setExpression("Constraints[6]", "Params.sketch8_diameter")
doc.recompute()
hole7 = body.newObject("PartDesign::Hole", "Hole006")
hole7.Profile = sketch8
hole7.ThreadType = "None"
hole7.setExpression("Diameter", "Params.hole7_diameter")
hole7.DepthType = "ThroughAll"

sketch9 = body.newObject("Sketcher::SketchObject", "Sketch008")
sketch9.AttachmentSupport = (doc.getObject("XY_Plane"), [""])
sketch9.MapMode = "FlatFace"
sketch9.AttachmentOffset = App.Placement(App.Vector(0, 0, 1.5), App.Rotation())
sketch9.addGeometry([
    Part.Circle(App.Vector(14, 45, 0), App.Vector(0, 0, 1), 1.6),
    Part.Circle(App.Vector(23.1, 45, 0), App.Vector(0, 0, 1), 1.6),
], False)
sketch9.addConstraint([
    Sketcher.Constraint("Equal", 0, 1),
    Sketcher.Constraint("Horizontal", 0, 3, 1, 3),
    Sketcher.Constraint("Diameter", 0, Q("3.14 mm")),
    Sketcher.Constraint("DistanceX", -1, 1, 0, 3, Q("14 mm")),
    Sketcher.Constraint("DistanceY", -1, 1, 0, 3, Q("45 mm")),
    Sketcher.Constraint("DistanceX", -1, 1, 1, 3, Q("23.12 mm")),
])
sketch9.setExpression("Constraints[2]", "Params.sketch9_diameter")
doc.recompute()
hole8 = body.newObject("PartDesign::Hole", "Hole007")
hole8.Profile = sketch9
hole8.ThreadType = "None"
hole8.setExpression("Diameter", "Params.hole8_diameter")
hole8.DepthType = "ThroughAll"

sketch10 = body.newObject("Sketcher::SketchObject", "Sketch009")
sketch10.AttachmentSupport = (doc.getObject("XY_Plane"), [""])
sketch10.MapMode = "FlatFace"
sketch10.AttachmentOffset = App.Placement(App.Vector(0, 0, 1.5), App.Rotation())
sketch10.addGeometry([
    Part.Circle(App.Vector(14, -40, 0), App.Vector(0, 0, 1), 1.6),
    Part.Circle(App.Vector(23.1, -40, 0), App.Vector(0, 0, 1), 1.6),
], False)
sketch10.addConstraint([
    Sketcher.Constraint("Equal", 0, 1),
    Sketcher.Constraint("Horizontal", 0, 3, 1, 3),
    Sketcher.Constraint("Diameter", 0, Q("3.14 mm")),
    Sketcher.Constraint("DistanceX", -1, 1, 0, 3, Q("14 mm")),
    Sketcher.Constraint("DistanceY", 0, 3, -1, 1, Q("40 mm")),
    Sketcher.Constraint("DistanceX", -1, 1, 1, 3, Q("23.12 mm")),
])
sketch10.setExpression("Constraints[2]", "Params.sketch10_diameter")
doc.recompute()
hole9 = body.newObject("PartDesign::Hole", "Hole008")
hole9.Profile = sketch10
hole9.ThreadType = "None"
hole9.setExpression("Diameter", "Params.hole9_diameter")
hole9.DepthType = "ThroughAll"

sketch11 = body.newObject("Sketcher::SketchObject", "Sketch010")
sketch11.AttachmentSupport = (doc.getObject("XY_Plane"), [""])
sketch11.MapMode = "FlatFace"
sketch11.AttachmentOffset = App.Placement(App.Vector(0, 0, 1.5), App.Rotation())
sketch11.addGeometry([
    Part.LineSegment(App.Vector(3.2, -97.1, 0), App.Vector(-3.2, -97.1, 0)),
    Part.ArcOfCircle(Part.Circle(App.Vector(-3.2, -98.6, 0), App.Vector(0, 0, 1), 1.5), math.radians(90), math.radians(270)),
    Part.LineSegment(App.Vector(-3.2, -100.1, 0), App.Vector(3.2, -100.1, 0)),
    Part.ArcOfCircle(Part.Circle(App.Vector(3.2, -98.6, 0), App.Vector(0, 0, 1), 1.5), math.radians(-90), math.radians(90)),
], False)
sketch11.addConstraint([
    Sketcher.Constraint("Tangent", 0, 2, 1, 1),
    Sketcher.Constraint("Tangent", 1, 2, 2, 1),
    Sketcher.Constraint("Tangent", 2, 2, 3, 1),
    Sketcher.Constraint("Tangent", 3, 2, 0, 1),
    Sketcher.Constraint("Horizontal", 0),
    Sketcher.Constraint("Horizontal", 2),
    Sketcher.Constraint("Radius", 1, Q("1.5 mm")),
    Sketcher.Constraint("DistanceX", 0, 2, 0, 1, Q("6.5 mm")),
    Sketcher.Constraint("DistanceX", 1, 3, -1, 1, Q("3.25 mm")),
    Sketcher.Constraint("DistanceY", 1, 3, -1, 1, Q("98.62 mm")),
])
sketch11.setExpression("Constraints[6]", "Params.sketch11_radius")
sketch11.setExpression("Constraints[7]", "Params.sketch11_width")
pocket1 = body.newObject("PartDesign::Pocket", "Pocket")
pocket1.Profile = sketch11
pocket1.Type = "ThroughAll"

sketch12 = body.newObject("Sketcher::SketchObject", "Sketch011")
sketch12.AttachmentSupport = (doc.getObject("XY_Plane"), [""])
sketch12.MapMode = "FlatFace"
sketch12.AttachmentOffset = App.Placement(App.Vector(0, 0, 1.5), App.Rotation())
sketch12.addGeometry([
    Part.LineSegment(App.Vector(10, -66.5, 0), App.Vector(-10, -66.5, 0)),
    Part.ArcOfCircle(Part.Circle(App.Vector(-10, -69, 0), App.Vector(0, 0, 1), 2.5), math.radians(90), math.radians(270)),
    Part.LineSegment(App.Vector(-10, -71.5, 0), App.Vector(10, -71.5, 0)),
    Part.ArcOfCircle(Part.Circle(App.Vector(10, -69, 0), App.Vector(0, 0, 1), 2.5), math.radians(-90), math.radians(90)),
], False)
sketch12.addConstraint([
    Sketcher.Constraint("Tangent", 0, 2, 1, 1),
    Sketcher.Constraint("Tangent", 1, 2, 2, 1),
    Sketcher.Constraint("Tangent", 2, 2, 3, 1),
    Sketcher.Constraint("Tangent", 3, 2, 0, 1),
    Sketcher.Constraint("Horizontal", 0),
    Sketcher.Constraint("Horizontal", 2),
    Sketcher.Constraint("Radius", 1, Q("2.5 mm")),
    Sketcher.Constraint("DistanceX", 0, 2, 0, 1, Q("20 mm")),
    Sketcher.Constraint("DistanceX", 1, 3, -1, 1, Q("10 mm")),
    Sketcher.Constraint("DistanceY", 1, 3, -1, 1, Q("69 mm")),
])
sketch12.setExpression("Constraints[6]", "Params.sketch12_radius")
sketch12.setExpression("Constraints[7]", "Params.sketch12_width")
pocket2 = body.newObject("PartDesign::Pocket", "Pocket001")
pocket2.Profile = sketch12
pocket2.Type = "ThroughAll"
doc.recompute()

mirrored2 = body.newObject("PartDesign::Mirrored", "Mirrored001")
mirrored2.Originals = [pocket1, pocket2]
mirrored2.MirrorPlane = (doc.getObject("XZ_Plane"), [""])
body.Tip = mirrored2

sketch13 = body.newObject("Sketcher::SketchObject", "Sketch012")
sketch13.AttachmentSupport = (doc.getObject("XY_Plane"), [""])
sketch13.MapMode = "FlatFace"
sketch13.AttachmentOffset = App.Placement(App.Vector(0, 0, 1.5), App.Rotation())
sketch13.addGeometry([
    Part.Circle(App.Vector(83, 102.9, 0), App.Vector(0, 0, 1), 1.8),
    Part.Circle(App.Vector(83, 72, 0), App.Vector(0, 0, 1), 1.8),
], False)
sketch13.addConstraint([
    Sketcher.Constraint("Equal", 0, 1),
    Sketcher.Constraint("Vertical", 0, 3, 1, 3),
    Sketcher.Constraint("Diameter", 0, Q("3.6 mm")),
    Sketcher.Constraint("DistanceX", -1, 1, 0, 3, Q("83 mm")),
    Sketcher.Constraint("DistanceY", -1, 1, 1, 3, Q("72 mm")),
    Sketcher.Constraint("DistanceY", -1, 1, 0, 3, Q("102.92 mm")),
])
sketch13.setExpression("Constraints[2]", "Params.sketch13_diameter")
doc.recompute()
hole10 = body.newObject("PartDesign::Hole", "Hole009")
hole10.Profile = sketch13
hole10.ThreadType = "None"
hole10.setExpression("Diameter", "Params.hole10_diameter")
hole10.DepthType = "ThroughAll"
doc.recompute()

fillet = body.newObject("PartDesign::Fillet", "Fillet")
fillet.Base = (hole10, edges_at(hole10, [
    (-108, -108, 0),
    (-108, 108, 0),
    (108, -108, 0),
    (108, 108, 0),
]))
fillet.setExpression("Radius", "Params.fillet_radius")

doc.recompute()
